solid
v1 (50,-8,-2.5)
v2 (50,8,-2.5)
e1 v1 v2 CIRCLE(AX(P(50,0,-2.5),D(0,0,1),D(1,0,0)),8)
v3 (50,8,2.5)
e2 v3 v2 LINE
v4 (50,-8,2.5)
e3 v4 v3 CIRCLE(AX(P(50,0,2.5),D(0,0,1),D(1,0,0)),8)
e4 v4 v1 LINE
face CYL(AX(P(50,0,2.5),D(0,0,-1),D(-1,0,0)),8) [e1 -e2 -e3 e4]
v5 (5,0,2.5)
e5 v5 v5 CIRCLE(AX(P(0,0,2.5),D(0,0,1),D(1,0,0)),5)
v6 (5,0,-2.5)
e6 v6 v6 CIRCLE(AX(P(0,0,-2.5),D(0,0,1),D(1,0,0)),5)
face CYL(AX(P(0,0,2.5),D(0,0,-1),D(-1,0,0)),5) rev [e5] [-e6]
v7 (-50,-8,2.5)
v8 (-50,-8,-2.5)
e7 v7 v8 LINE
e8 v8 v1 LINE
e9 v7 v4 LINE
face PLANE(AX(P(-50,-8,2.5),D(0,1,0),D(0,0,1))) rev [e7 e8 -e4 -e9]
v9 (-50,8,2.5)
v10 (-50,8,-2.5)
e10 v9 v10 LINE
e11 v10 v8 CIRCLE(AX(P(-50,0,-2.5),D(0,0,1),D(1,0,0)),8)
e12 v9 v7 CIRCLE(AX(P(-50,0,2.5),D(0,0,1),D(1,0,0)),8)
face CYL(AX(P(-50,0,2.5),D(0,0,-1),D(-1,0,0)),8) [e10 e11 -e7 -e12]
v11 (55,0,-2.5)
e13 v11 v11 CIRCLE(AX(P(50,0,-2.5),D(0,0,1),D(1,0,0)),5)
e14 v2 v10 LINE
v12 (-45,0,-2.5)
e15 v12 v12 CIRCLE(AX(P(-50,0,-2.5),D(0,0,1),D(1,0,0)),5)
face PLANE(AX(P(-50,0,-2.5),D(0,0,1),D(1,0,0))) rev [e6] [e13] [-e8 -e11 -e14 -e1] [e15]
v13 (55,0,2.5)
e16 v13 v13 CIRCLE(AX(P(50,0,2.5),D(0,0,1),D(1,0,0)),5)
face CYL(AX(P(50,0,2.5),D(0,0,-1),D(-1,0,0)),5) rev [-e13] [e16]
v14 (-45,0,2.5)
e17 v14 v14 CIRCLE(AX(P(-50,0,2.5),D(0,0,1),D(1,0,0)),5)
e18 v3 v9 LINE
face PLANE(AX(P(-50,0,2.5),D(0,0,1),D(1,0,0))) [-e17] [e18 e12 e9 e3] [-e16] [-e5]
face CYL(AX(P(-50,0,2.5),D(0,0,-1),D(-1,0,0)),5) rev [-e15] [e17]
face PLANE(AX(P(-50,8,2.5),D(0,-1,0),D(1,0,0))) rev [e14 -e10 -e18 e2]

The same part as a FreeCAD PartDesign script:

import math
import FreeCAD as App
import Part
import Sketcher

doc = App.newDocument("Part")
params = doc.addObject("Spreadsheet::Sheet", "Params")
for row, (alias, value) in enumerate([
    ("sketch1_diameter", "10 mm"),
    ("sketch1_radius", "8 mm"),
    ("sketch1_width", "100 mm"),
    ("pad1_length", "5 mm"),
], start=1):
    params.set(f"A{row}", alias)
    params.set(f"B{row}", "=" + value)
    params.setAlias(f"B{row}", alias)

body = doc.addObject("PartDesign::Body", "Body")

# Sketch on XY plane
sketch1 = body.newObject("Sketcher::SketchObject", "Sketch")
sketch1.AttachmentSupport = (doc.getObject("XY_Plane"), [""])
sketch1.MapMode = "FlatFace"
sketch1.addGeometry(Part.LineSegment(App.Vector(50, 8, 0), App.Vector(-50, 8, 0)), False)
sketch1.addGeometry(Part.ArcOfCircle(Part.Circle(App.Vector(-50, 0, 0), App.Vector(0, 0, 1), 8), math.radians(90), math.radians(270)), False)
sketch1.addGeometry(Part.LineSegment(App.Vector(-50, -8, 0), App.Vector(50, -8, 0)), False)
sketch1.addGeometry(Part.ArcOfCircle(Part.Circle(App.Vector(50, 0, 0), App.Vector(0, 0, 1), 8), math.radians(-90), math.radians(90)), False)
sketch1.addGeometry(Part.Circle(App.Vector(50, 0, 0), App.Vector(0, 0, 1), 5), False)
sketch1.addGeometry(Part.Circle(App.Vector(0, 0, 0), App.Vector(0, 0, 1), 5), False)
sketch1.addGeometry(Part.Circle(App.Vector(-50, 0, 0), App.Vector(0, 0, 1), 5), False)
sketch1.addConstraint(Sketcher.Constraint("Tangent", 0, 2, 1, 1))
sketch1.addConstraint(Sketcher.Constraint("Tangent", 1, 2, 2, 1))
sketch1.addConstraint(Sketcher.Constraint("Tangent", 2, 2, 3, 1))
sketch1.addConstraint(Sketcher.Constraint("Tangent", 3, 2, 0, 1))
sketch1.addConstraint(Sketcher.Constraint("Horizontal", 0))
sketch1.addConstraint(Sketcher.Constraint("Horizontal", 2))
sketch1.addConstraint(Sketcher.Constraint("Coincident", 5, 3, -1, 1))
sketch1.addConstraint(Sketcher.Constraint("Coincident", 4, 3, 3, 3))
sketch1.addConstraint(Sketcher.Constraint("Coincident", 6, 3, 1, 3))
sketch1.addConstraint(Sketcher.Constraint("Equal", 4, 5))
sketch1.addConstraint(Sketcher.Constraint("Equal", 5, 6))
sketch1.addConstraint(Sketcher.Constraint("Symmetric", 1, 3, 3, 3, -1, 1))
sketch1.addConstraint(Sketcher.Constraint("Diameter", 4, 10.0))
sketch1.addConstraint(Sketcher.Constraint("Radius", 1, 8.0))
sketch1.addConstraint(Sketcher.Constraint("DistanceX", 0, 2, 0, 1, 100.0))
sketch1.setExpression("Constraints[12]", "Params.sketch1_diameter")
sketch1.setExpression("Constraints[13]", "Params.sketch1_radius")
sketch1.setExpression("Constraints[14]", "Params.sketch1_width")
pad1 = body.newObject("PartDesign::Pad", "Pad")
pad1.Profile = sketch1
pad1.setExpression("Length", "Params.pad1_length")
pad1.Midplane = True

doc.recompute()
